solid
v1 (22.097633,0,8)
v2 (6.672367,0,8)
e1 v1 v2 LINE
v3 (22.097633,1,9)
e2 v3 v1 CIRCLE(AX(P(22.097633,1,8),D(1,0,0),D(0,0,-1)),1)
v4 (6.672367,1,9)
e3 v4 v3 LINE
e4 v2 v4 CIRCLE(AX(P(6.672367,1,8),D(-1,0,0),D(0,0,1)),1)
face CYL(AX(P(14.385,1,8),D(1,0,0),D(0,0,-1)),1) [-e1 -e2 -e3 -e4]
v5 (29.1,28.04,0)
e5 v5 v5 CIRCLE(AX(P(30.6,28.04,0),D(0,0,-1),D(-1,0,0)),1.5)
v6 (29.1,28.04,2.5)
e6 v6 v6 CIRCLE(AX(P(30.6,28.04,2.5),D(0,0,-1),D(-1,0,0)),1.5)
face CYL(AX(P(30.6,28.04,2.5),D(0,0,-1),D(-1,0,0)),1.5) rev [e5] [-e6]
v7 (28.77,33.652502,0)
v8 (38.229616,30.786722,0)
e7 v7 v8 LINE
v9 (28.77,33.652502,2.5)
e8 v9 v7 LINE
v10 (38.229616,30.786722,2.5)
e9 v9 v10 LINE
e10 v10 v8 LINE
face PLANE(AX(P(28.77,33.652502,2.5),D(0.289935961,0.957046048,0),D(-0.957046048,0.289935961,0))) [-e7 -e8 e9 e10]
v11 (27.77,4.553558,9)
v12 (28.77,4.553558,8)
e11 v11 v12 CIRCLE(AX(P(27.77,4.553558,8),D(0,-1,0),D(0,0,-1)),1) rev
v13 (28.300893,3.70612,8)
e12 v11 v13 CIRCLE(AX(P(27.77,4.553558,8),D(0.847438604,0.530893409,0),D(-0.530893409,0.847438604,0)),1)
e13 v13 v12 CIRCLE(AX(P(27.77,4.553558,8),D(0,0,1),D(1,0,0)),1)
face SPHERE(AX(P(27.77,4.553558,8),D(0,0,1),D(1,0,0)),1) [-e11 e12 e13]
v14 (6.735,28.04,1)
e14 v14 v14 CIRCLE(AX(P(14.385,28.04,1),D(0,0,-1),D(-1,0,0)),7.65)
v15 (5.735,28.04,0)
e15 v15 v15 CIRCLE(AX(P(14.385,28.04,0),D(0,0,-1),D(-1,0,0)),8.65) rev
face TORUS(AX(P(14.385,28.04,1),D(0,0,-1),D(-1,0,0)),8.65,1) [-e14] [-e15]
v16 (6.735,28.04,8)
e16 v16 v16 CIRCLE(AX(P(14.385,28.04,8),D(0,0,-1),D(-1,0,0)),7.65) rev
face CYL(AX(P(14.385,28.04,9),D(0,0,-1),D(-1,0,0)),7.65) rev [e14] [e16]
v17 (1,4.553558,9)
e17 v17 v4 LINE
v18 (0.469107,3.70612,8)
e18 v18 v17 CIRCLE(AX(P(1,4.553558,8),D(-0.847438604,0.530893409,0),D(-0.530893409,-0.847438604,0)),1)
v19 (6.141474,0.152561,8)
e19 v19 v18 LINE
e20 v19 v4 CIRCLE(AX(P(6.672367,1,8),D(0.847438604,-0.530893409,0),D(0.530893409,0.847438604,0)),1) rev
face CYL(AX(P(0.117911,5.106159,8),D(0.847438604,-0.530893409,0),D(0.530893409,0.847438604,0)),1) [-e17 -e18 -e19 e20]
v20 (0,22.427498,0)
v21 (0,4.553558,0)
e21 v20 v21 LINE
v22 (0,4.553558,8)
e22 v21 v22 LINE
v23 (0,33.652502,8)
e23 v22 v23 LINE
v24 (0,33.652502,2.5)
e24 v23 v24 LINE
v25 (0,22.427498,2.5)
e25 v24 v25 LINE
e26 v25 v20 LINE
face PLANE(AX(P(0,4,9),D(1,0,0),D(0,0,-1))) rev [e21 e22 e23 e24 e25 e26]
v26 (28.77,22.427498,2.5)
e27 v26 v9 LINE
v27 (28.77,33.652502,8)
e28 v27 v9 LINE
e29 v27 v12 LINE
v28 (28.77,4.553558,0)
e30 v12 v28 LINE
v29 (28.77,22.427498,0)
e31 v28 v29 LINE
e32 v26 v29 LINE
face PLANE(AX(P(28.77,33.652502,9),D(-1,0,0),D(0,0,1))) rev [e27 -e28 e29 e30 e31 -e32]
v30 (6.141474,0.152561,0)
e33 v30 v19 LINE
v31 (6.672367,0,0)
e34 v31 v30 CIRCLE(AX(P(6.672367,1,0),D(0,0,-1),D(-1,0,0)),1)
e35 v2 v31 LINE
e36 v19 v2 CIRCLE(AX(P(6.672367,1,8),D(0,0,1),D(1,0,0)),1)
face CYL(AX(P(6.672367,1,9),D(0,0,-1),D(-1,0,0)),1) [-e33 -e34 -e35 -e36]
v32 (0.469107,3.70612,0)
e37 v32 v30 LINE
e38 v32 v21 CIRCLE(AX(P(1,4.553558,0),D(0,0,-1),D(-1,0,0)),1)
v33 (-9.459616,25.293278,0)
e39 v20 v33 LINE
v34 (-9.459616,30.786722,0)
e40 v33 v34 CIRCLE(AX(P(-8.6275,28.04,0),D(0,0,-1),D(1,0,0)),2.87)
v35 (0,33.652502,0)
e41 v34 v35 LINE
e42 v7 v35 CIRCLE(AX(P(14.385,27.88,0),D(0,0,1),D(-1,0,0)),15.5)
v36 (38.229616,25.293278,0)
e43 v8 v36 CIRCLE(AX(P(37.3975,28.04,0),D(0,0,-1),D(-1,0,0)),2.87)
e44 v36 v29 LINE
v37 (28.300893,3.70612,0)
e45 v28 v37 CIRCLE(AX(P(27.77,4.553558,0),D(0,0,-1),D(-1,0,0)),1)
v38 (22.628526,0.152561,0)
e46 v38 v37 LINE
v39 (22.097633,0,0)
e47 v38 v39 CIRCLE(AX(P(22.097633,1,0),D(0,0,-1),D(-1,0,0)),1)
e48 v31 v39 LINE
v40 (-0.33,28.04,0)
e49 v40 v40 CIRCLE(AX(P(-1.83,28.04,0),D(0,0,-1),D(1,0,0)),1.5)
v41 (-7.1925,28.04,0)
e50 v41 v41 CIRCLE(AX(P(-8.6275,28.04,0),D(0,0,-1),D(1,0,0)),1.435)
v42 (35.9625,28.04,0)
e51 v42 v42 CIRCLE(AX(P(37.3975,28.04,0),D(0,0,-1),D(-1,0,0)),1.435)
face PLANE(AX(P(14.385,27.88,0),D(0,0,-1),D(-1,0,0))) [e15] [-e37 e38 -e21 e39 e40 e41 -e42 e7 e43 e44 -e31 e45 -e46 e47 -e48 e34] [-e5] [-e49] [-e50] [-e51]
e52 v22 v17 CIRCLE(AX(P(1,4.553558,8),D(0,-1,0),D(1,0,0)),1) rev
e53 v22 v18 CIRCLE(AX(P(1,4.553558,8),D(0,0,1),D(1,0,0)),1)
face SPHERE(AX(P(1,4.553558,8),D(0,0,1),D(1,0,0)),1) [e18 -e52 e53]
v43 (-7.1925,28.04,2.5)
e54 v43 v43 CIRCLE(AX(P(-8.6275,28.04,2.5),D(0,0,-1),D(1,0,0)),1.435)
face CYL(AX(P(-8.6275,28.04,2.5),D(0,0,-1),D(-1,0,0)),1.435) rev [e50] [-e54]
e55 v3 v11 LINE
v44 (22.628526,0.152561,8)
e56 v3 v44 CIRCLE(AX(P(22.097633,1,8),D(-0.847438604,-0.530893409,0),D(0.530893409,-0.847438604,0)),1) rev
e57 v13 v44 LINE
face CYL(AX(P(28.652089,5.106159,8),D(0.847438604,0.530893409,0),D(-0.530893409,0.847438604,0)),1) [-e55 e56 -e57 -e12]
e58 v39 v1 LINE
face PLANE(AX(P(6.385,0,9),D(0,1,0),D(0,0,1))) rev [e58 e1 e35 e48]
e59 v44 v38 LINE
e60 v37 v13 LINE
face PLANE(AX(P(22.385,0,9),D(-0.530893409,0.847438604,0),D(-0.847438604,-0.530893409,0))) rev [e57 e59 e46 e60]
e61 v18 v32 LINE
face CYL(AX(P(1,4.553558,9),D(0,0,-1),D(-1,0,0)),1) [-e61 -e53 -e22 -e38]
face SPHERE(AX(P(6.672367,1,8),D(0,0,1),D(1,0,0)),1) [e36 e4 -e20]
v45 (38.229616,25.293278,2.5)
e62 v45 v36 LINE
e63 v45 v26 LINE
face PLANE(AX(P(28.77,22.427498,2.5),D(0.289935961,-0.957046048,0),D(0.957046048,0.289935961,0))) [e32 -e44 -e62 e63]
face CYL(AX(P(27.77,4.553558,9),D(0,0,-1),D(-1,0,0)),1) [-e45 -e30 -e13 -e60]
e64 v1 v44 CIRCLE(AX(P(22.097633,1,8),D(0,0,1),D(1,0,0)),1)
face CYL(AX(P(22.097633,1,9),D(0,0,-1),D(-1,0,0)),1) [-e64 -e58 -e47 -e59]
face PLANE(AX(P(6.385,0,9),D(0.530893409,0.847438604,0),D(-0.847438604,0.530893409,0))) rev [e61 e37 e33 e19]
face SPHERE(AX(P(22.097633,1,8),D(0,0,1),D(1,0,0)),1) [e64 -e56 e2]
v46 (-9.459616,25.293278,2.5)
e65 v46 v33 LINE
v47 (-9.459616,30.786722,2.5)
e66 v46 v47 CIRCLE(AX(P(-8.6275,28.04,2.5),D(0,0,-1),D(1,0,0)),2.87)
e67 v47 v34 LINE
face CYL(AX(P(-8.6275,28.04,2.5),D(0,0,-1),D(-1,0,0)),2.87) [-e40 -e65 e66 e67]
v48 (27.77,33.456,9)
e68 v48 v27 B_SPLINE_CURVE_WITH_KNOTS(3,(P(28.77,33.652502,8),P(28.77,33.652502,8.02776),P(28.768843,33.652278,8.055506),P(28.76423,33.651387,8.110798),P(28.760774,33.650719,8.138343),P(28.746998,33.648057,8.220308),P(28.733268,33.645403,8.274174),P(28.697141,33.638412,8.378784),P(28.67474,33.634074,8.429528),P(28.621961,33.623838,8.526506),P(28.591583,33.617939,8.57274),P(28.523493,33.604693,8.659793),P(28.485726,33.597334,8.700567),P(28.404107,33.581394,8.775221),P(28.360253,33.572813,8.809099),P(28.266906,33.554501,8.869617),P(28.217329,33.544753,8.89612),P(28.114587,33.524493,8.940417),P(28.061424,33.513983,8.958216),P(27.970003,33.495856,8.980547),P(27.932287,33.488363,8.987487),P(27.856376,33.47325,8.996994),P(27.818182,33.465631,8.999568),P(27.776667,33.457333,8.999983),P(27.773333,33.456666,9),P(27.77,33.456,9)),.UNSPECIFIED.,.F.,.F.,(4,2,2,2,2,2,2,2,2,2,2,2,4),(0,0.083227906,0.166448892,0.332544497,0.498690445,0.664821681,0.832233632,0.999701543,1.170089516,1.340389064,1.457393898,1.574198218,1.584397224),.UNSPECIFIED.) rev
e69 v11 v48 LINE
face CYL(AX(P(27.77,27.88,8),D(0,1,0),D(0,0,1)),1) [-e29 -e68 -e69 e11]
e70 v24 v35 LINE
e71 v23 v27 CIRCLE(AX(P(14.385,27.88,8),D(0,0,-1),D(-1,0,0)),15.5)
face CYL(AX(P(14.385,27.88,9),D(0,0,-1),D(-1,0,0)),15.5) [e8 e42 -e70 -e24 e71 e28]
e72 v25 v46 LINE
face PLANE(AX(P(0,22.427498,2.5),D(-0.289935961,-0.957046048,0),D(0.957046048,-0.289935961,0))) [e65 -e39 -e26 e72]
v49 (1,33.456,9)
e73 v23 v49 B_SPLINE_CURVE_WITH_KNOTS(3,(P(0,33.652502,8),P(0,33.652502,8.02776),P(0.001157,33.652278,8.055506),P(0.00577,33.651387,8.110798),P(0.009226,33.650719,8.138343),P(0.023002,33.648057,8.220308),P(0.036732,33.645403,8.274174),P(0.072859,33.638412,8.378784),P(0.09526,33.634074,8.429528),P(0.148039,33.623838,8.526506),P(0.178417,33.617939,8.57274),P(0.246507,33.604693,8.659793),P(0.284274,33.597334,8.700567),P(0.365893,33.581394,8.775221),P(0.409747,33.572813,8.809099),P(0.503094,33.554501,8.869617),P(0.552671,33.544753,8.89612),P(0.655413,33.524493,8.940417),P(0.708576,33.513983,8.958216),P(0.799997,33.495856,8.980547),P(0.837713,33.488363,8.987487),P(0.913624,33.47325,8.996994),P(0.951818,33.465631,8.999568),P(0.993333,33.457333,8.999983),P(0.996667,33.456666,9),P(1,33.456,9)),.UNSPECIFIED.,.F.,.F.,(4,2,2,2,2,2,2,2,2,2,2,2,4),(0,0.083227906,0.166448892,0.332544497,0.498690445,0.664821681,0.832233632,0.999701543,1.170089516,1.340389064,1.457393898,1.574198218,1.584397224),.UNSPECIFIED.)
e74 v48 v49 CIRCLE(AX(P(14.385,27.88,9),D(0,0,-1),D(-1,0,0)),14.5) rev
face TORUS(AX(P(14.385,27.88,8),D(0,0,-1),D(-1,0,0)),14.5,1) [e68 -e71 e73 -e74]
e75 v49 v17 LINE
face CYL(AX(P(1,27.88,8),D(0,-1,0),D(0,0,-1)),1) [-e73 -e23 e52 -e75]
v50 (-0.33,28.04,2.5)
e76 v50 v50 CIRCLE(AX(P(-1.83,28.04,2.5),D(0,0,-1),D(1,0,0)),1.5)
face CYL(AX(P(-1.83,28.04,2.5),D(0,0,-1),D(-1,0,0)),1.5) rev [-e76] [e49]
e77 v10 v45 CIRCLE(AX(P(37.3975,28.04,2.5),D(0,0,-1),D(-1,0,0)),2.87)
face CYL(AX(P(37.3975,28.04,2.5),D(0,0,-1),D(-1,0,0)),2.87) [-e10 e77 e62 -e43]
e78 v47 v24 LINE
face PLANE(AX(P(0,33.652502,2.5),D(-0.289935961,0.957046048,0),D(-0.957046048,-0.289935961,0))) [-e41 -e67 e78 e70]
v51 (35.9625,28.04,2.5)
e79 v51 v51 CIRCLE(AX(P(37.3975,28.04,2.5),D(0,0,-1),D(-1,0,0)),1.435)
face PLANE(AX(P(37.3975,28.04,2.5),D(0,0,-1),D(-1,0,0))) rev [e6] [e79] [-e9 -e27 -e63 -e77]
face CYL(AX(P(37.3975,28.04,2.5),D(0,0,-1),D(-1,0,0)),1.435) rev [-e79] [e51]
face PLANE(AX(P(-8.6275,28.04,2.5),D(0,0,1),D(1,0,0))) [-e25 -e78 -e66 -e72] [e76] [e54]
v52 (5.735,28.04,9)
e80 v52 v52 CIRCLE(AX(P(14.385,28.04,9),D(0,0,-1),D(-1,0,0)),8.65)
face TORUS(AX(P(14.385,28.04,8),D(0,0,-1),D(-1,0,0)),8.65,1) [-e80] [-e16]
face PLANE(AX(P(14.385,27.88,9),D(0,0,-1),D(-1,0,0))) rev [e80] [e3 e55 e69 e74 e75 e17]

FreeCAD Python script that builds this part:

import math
import FreeCAD as App
import Part
import Sketcher
Q = App.Units.Quantity


def edges_at(feature, points):
    """Names of the edges that pass closest to the given points."""
    edges = feature.Shape.Edges
    near = lambda p: min(range(len(edges)), key=lambda i: edges[i].distToShape(Part.Vertex(*p))[0])
    return sorted({f"Edge{near(p) + 1}" for p in points})

doc = App.newDocument("Part")
params = doc.addObject("Spreadsheet::Sheet", "Params")
for row, (alias, value) in enumerate([
    ("sketch1_diameter", "15.3 mm"),
    ("sketch1_radius", "15.5 mm"),
    ("sketch1_width", "16 mm"),
    ("pad1_length", "9 mm"),
    ("fillet_radius", "1 mm"),
    ("sketch2_diameter", "3 mm"),
    ("sketch2_diameter2", "2.87 mm"),
    ("sketch2_radius", "2.87 mm"),
    ("pad2_length", "2.5 mm"),
], start=1):
    params.set(f"A{row}", alias)
    params.set(f"B{row}", "=" + value)
    params.setAlias(f"B{row}", alias)

body = doc.addObject("PartDesign::Body", "Body")

# Sketch on XY plane
sketch1 = body.newObject("Sketcher::SketchObject", "Sketch")
sketch1.AttachmentSupport = (doc.getObject("XY_Plane"), [""])
sketch1.MapMode = "FlatFace"
sketch1.addGeometry([
    Part.LineSegment(App.Vector(6, 0, 0), App.Vector(22, 0, 0)),  # 0
    Part.LineSegment(App.Vector(22, 0, 0), App.Vector(29, 4, 0)),  # 1
    Part.LineSegment(App.Vector(29, 4, 0), App.Vector(29, 34, 0)),  # 2
    Part.ArcOfCircle(Part.Circle(App.Vector(14, 28, 0), App.Vector(0, 0, 1), 16), math.radians(22), math.radians(158)),  # 3
    Part.LineSegment(App.Vector(0, 34, 0), App.Vector(0, 4, 0)),  # 4
    Part.LineSegment(App.Vector(0, 4, 0), App.Vector(6, 0, 0)),  # 5
    Part.Circle(App.Vector(14, 28, 0), App.Vector(0, 0, 1), 8),  # 6
], False)
sketch1.addConstraint([
    Sketcher.Constraint("Coincident", 0, 2, 1, 1),
    Sketcher.Constraint("Coincident", 1, 2, 2, 1),
    Sketcher.Constraint("Coincident", 2, 2, 3, 1),
    Sketcher.Constraint("Coincident", 3, 2, 4, 1),
    Sketcher.Constraint("Coincident", 4, 2, 5, 1),
    Sketcher.Constraint("Coincident", 5, 2, 0, 1),
    Sketcher.Constraint("Horizontal", 0),
    Sketcher.Constraint("Vertical", 2),
    Sketcher.Constraint("Vertical", 4),
    Sketcher.Constraint("PointOnObject", 0, 2, -1),
    Sketcher.Constraint("PointOnObject", 3, 2, -2),
    Sketcher.Constraint("Horizontal", 2, 2, 3, 2),
    Sketcher.Constraint("Horizontal", 1, 2, 4, 2),
    Sketcher.Constraint("Vertical", 3, 3, 6, 3),
    Sketcher.Constraint("Equal", 1, 5),
    Sketcher.Constraint("Diameter", 6, Q("15.3 mm")),
    Sketcher.Constraint("Radius", 3, Q("15.5 mm")),
    Sketcher.Constraint("DistanceX", 0, 1, 0, 2, Q("16 mm")),
    Sketcher.Constraint("DistanceY", -1, 1, 1, 2, Q("4 mm")),
    Sketcher.Constraint("DistanceY", -1, 1, 3, 3, Q("27.88 mm")),
    Sketcher.Constraint("DistanceY", -1, 1, 6, 3, Q("28.04 mm")),
    Sketcher.Constraint("DistanceX", -1, 1, 1, 2, Q("28.77 mm")),
])
sketch1.setExpression("Constraints[15]", "Params.sketch1_diameter")
sketch1.setExpression("Constraints[16]", "Params.sketch1_radius")
sketch1.setExpression("Constraints[17]", "Params.sketch1_width")
pad1 = body.newObject("PartDesign::Pad", "Pad")
pad1.Profile = sketch1
pad1.setExpression("Length", "Params.pad1_length")
doc.recompute()

fillet = body.newObject("PartDesign::Fillet", "Fillet")
fillet.Base = (pad1, edges_at(pad1, [
    (25.578, 2, 9),
    (0, 4, 4.5),
    (28.77, 4, 4.5),
    (22.385, 0, 4.5),
    (6.385, 0, 4.5),
    (28.77, 18.826, 9),
    (14.385, 43.38, 9),
    (6.735, 28.04, 0),
    (6.735, 28.04, 9),
    (0, 18.826, 9),
    (3.192, 2, 9),
    (14.385, 0, 9),
]))
fillet.setExpression("Radius", "Params.fillet_radius")

# Sketch on XY plane
sketch2 = body.newObject("Sketcher::SketchObject", "Sketch001")
sketch2.AttachmentSupport = (doc.getObject("XY_Plane"), [""])
sketch2.MapMode = "FlatFace"
sketch2.addGeometry([
    Part.LineSegment(App.Vector(28.8, 33.7, 0), App.Vector(38.2, 30.8, 0)),  # 0
    Part.ArcOfCircle(Part.Circle(App.Vector(37.4, 28, 0), App.Vector(0, 0, 1), 2.9), math.radians(-73), math.radians(73)),  # 1
    Part.LineSegment(App.Vector(38.2, 25.3, 0), App.Vector(28.8, 22.4, 0)),  # 2
    Part.LineSegment(App.Vector(28.8, 22.4, 0), App.Vector(28.8, 33.7, 0)),  # 3
    Part.Circle(App.Vector(37.4, 28, 0), App.Vector(0, 0, 1), 1.4),  # 4
    Part.Circle(App.Vector(30.6, 28, 0), App.Vector(0, 0, 1), 1.5),  # 5
    Part.LineSegment(App.Vector(0, 22.4, 0), App.Vector(-9.5, 25.3, 0)),  # 6
    Part.ArcOfCircle(Part.Circle(App.Vector(-8.6, 28, 0), App.Vector(0, 0, 1), 2.9), math.radians(107), math.radians(253)),  # 7
    Part.LineSegment(App.Vector(-9.5, 30.8, 0), App.Vector(0, 33.7, 0)),  # 8
    Part.LineSegment(App.Vector(0, 33.7, 0), App.Vector(0, 22.4, 0)),  # 9
    Part.Circle(App.Vector(-1.8, 28, 0), App.Vector(0, 0, 1), 1.5),  # 10
    Part.Circle(App.Vector(-8.6, 28, 0), App.Vector(0, 0, 1), 1.4),  # 11
], False)
sketch2.addConstraint([
    Sketcher.Constraint("Tangent", 0, 2, 1, 2),
    Sketcher.Constraint("Tangent", 1, 1, 2, 1),
    Sketcher.Constraint("Coincident", 2, 2, 3, 1),
    Sketcher.Constraint("Coincident", 3, 2, 0, 1),
    Sketcher.Constraint("Tangent", 6, 2, 7, 2),
    Sketcher.Constraint("Tangent", 7, 1, 8, 1),
    Sketcher.Constraint("Coincident", 8, 2, 9, 1),
    Sketcher.Constraint("Coincident", 9, 2, 6, 1),
    Sketcher.Constraint("Vertical", 3),
    Sketcher.Constraint("Vertical", 9),
    Sketcher.Constraint("Coincident", 4, 3, 1, 3),
    Sketcher.Constraint("Coincident", 11, 3, 7, 3),
    Sketcher.Constraint("Equal", 1, 7),
    Sketcher.Constraint("Equal", 5, 10),
    Sketcher.Constraint("Equal", 4, 11),
    Sketcher.Constraint("PointOnObject", 8, 2, -2),
    Sketcher.Constraint("Parallel", 0, 6),
    Sketcher.Constraint("Parallel", 2, 8),
    Sketcher.Constraint("Horizontal", 4, 3, 5, 3),
    Sketcher.Constraint("Horizontal", 5, 3, 7, 3),
    Sketcher.Constraint("Horizontal", 7, 3, 10, 3),
    Sketcher.Constraint("Horizontal", 1, 1, 6, 2),
    Sketcher.Constraint("Horizontal", 3, 2, 8, 2),
    Sketcher.Constraint("Diameter", 5, Q("3 mm")),
    Sketcher.Constraint("Diameter", 4, Q("2.87 mm")),
    Sketcher.Constraint("Radius", 1, Q("2.87 mm")),
    Sketcher.Constraint("DistanceX", -1, 1, 5, 3, Q("30.6 mm")),
    Sketcher.Constraint("DistanceY", -1, 1, 1, 3, Q("28.04 mm")),
    Sketcher.Constraint("DistanceX", 10, 3, -1, 1, Q("1.83 mm")),
    Sketcher.Constraint("DistanceX", -1, 1, 2, 2, Q("28.77 mm")),
    Sketcher.Constraint("DistanceX", 7, 3, 1, 3, Q("46.025 mm")),
    Sketcher.Constraint("DistanceY", -1, 1, 2, 2, Q("22.427498 mm")),
])
sketch2.setExpression("Constraints[23]", "Params.sketch2_diameter")
sketch2.setExpression("Constraints[24]", "Params.sketch2_diameter2")
sketch2.setExpression("Constraints[25]", "Params.sketch2_radius")
pad2 = body.newObject("PartDesign::Pad", "Pad001")
pad2.Profile = sketch2
pad2.setExpression("Length", "Params.pad2_length")

doc.recompute()
